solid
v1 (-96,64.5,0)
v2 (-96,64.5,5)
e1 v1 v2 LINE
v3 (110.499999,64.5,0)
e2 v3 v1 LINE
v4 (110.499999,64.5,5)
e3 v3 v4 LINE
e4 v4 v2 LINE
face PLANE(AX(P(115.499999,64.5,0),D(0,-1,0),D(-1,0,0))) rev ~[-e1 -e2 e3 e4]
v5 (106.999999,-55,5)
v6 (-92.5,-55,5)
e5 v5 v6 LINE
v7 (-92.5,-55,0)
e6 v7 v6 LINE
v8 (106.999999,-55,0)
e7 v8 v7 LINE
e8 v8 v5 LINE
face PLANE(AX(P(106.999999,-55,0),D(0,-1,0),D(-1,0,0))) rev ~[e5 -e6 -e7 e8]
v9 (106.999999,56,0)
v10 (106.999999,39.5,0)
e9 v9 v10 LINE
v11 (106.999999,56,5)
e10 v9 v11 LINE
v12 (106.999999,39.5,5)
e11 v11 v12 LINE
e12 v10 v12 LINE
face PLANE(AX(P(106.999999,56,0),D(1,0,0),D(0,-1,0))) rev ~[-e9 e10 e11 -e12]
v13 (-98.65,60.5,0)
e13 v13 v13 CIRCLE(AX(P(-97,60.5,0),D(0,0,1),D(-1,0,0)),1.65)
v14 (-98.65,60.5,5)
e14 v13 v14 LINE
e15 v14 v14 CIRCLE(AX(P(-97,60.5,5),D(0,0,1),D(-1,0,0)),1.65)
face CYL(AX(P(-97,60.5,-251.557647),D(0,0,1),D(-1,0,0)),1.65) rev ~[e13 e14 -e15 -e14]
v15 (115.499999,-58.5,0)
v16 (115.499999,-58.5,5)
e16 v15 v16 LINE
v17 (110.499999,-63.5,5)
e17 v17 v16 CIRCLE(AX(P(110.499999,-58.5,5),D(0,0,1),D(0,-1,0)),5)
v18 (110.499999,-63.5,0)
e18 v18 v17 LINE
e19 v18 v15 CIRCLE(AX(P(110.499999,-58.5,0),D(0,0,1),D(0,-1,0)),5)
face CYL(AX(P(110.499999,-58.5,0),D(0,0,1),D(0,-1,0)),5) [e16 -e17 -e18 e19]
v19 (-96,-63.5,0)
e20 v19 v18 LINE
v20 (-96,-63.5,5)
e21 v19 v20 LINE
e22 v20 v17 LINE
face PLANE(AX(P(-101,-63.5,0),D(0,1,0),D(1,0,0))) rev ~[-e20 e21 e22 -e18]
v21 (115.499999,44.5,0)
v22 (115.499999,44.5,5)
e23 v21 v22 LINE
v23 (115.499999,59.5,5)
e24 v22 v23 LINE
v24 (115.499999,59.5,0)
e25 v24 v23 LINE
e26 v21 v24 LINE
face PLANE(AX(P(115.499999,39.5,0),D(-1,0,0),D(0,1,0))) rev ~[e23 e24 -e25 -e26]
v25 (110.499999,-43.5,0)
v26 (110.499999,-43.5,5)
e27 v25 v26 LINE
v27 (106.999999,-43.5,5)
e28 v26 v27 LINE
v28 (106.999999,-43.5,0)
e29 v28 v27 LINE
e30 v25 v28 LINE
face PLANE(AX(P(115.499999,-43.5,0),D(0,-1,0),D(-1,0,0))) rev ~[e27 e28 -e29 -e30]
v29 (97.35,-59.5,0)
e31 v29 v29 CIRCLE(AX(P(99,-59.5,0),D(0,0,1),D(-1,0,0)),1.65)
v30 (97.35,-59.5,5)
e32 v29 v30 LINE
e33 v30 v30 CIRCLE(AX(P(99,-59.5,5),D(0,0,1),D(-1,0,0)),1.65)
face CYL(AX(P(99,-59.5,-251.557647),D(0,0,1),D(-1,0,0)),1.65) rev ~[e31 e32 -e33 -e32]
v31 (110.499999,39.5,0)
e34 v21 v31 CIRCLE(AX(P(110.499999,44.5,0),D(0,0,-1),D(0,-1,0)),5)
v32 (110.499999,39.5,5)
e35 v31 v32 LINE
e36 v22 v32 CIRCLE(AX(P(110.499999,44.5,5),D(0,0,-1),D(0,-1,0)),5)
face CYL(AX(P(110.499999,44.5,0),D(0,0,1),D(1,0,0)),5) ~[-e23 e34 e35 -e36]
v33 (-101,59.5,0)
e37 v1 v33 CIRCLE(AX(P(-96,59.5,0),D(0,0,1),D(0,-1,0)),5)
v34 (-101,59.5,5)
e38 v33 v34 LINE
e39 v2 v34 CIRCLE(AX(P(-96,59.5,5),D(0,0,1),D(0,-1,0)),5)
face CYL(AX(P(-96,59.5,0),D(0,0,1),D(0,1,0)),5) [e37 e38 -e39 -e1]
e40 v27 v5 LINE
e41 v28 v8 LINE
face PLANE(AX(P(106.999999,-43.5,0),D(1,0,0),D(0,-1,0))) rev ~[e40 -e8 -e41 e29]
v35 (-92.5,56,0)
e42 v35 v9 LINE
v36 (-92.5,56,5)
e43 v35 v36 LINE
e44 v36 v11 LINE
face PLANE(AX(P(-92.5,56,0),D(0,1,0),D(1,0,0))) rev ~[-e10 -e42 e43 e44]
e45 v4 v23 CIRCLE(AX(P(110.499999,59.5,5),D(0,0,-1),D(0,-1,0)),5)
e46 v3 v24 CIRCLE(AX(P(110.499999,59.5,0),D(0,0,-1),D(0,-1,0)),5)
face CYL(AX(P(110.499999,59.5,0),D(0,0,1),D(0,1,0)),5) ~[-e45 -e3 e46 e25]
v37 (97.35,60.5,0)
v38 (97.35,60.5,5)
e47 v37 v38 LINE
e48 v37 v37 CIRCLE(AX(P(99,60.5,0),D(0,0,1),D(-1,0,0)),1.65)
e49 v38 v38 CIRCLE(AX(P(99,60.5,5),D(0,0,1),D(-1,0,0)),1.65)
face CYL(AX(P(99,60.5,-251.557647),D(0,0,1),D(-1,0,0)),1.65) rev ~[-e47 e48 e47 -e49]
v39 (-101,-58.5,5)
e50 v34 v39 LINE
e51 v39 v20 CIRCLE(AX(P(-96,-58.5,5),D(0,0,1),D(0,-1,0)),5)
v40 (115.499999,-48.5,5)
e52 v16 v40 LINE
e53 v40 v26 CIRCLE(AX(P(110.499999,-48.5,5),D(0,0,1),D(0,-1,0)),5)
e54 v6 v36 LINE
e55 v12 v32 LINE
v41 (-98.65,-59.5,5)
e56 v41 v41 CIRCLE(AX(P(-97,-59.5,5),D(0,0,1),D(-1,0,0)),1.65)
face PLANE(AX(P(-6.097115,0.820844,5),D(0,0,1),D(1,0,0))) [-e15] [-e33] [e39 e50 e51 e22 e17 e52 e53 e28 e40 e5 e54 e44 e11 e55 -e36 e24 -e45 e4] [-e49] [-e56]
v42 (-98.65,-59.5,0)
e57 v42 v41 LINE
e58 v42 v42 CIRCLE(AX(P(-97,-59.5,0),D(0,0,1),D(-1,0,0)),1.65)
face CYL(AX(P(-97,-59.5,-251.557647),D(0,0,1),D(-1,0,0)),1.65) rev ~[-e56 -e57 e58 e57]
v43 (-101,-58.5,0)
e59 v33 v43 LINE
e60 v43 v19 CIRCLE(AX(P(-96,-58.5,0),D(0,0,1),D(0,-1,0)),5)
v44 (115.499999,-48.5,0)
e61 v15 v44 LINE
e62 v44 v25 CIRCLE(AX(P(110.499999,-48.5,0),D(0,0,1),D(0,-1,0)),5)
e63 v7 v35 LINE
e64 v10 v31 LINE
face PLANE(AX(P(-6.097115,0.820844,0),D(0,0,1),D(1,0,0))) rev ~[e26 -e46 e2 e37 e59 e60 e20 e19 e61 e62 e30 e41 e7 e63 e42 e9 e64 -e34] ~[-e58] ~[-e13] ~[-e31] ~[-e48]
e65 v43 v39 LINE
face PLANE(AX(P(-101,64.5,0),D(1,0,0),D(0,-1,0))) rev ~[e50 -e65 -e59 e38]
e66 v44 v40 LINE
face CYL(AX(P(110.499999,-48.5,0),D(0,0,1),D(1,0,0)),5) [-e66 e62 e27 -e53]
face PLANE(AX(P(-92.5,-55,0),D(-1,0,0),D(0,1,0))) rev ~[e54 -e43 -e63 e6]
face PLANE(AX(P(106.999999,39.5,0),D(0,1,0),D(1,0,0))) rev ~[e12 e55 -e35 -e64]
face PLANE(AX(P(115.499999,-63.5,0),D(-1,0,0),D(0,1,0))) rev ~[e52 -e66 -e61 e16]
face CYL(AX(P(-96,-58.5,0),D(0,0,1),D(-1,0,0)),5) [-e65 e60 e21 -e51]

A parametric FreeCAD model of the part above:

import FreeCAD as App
import Part
import Sketcher
Q = App.Units.Quantity


def edges_at(feature, points):
    """Names of the edges that pass closest to the given points."""
    edges = feature.Shape.Edges
    near = lambda p: min(range(len(edges)), key=lambda i: edges[i].distToShape(Part.Vertex(*p))[0])
    return sorted({f"Edge{near(p) + 1}" for p in points})

doc = App.newDocument("Part")
body = doc.addObject("PartDesign::Body", "Body")

# Sketch on XY plane
sketch1 = doc.addObject("Sketcher::SketchObject", "Sketch")
body.addObject(sketch1)
sketch1.AttachmentSupport = (doc.XY_Plane, [""])
sketch1.MapMode = "FlatFace"
sketch1.addGeometry(Part.LineSegment(App.Vector(115, 64, 0), App.Vector(-101, 64, 0)), False)
sketch1.addGeometry(Part.LineSegment(App.Vector(-101, 64, 0), App.Vector(-101, -64, 0)), False)
sketch1.addGeometry(Part.LineSegment(App.Vector(-101, -64, 0), App.Vector(115, -64, 0)), False)
sketch1.addGeometry(Part.LineSegment(App.Vector(115, -64, 0), App.Vector(115, -44, 0)), False)
sketch1.addGeometry(Part.LineSegment(App.Vector(115, -44, 0), App.Vector(107, -44, 0)), False)
sketch1.addGeometry(Part.LineSegment(App.Vector(107, -44, 0), App.Vector(107, -55, 0)), False)
sketch1.addGeometry(Part.LineSegment(App.Vector(107, -55, 0), App.Vector(-92, -55, 0)), False)
sketch1.addGeometry(Part.LineSegment(App.Vector(-92, -55, 0), App.Vector(-92, 56, 0)), False)
sketch1.addGeometry(Part.LineSegment(App.Vector(-92, 56, 0), App.Vector(107, 56, 0)), False)
sketch1.addGeometry(Part.LineSegment(App.Vector(107, 56, 0), App.Vector(107, 40, 0)), False)
sketch1.addGeometry(Part.LineSegment(App.Vector(107, 40, 0), App.Vector(115, 40, 0)), False)
sketch1.addGeometry(Part.LineSegment(App.Vector(115, 40, 0), App.Vector(115, 64, 0)), False)
sketch1.addConstraint(Sketcher.Constraint("Coincident", 0, 2, 1, 1))
sketch1.addConstraint(Sketcher.Constraint("Coincident", 1, 2, 2, 1))
sketch1.addConstraint(Sketcher.Constraint("Coincident", 2, 2, 3, 1))
sketch1.addConstraint(Sketcher.Constraint("Coincident", 3, 2, 4, 1))
sketch1.addConstraint(Sketcher.Constraint("Coincident", 4, 2, 5, 1))
sketch1.addConstraint(Sketcher.Constraint("Coincident", 5, 2, 6, 1))
sketch1.addConstraint(Sketcher.Constraint("Coincident", 6, 2, 7, 1))
sketch1.addConstraint(Sketcher.Constraint("Coincident", 7, 2, 8, 1))
sketch1.addConstraint(Sketcher.Constraint("Coincident", 8, 2, 9, 1))
sketch1.addConstraint(Sketcher.Constraint("Coincident", 9, 2, 10, 1))
sketch1.addConstraint(Sketcher.Constraint("Coincident", 10, 2, 11, 1))
sketch1.addConstraint(Sketcher.Constraint("Coincident", 11, 2, 0, 1))
sketch1.addConstraint(Sketcher.Constraint("Horizontal", 0))
sketch1.addConstraint(Sketcher.Constraint("Vertical", 1))
sketch1.addConstraint(Sketcher.Constraint("Horizontal", 2))
sketch1.addConstraint(Sketcher.Constraint("Vertical", 3))
sketch1.addConstraint(Sketcher.Constraint("Horizontal", 4))
sketch1.addConstraint(Sketcher.Constraint("Vertical", 5))
sketch1.addConstraint(Sketcher.Constraint("Horizontal", 6))
sketch1.addConstraint(Sketcher.Constraint("Vertical", 7))
sketch1.addConstraint(Sketcher.Constraint("Horizontal", 8))
sketch1.addConstraint(Sketcher.Constraint("Vertical", 9))
sketch1.addConstraint(Sketcher.Constraint("Horizontal", 10))
sketch1.addConstraint(Sketcher.Constraint("Vertical", 11))
sketch1.addConstraint(Sketcher.Constraint("Vertical", 5, 2, 8, 2))
sketch1.addConstraint(Sketcher.Constraint("Vertical", 3, 2, 10, 2))
sketch1.addConstraint(Sketcher.Constraint("DistanceY", 1, 2, 1, 1, Q("128 mm")))
sketch1.addConstraint(Sketcher.Constraint("DistanceY", 3, 1, 3, 2, Q("20 mm")))
sketch1.addConstraint(Sketcher.Constraint("DistanceY", 7, 1, 7, 2, Q("111 mm")))
sketch1.addConstraint(Sketcher.Constraint("DistanceY", 11, 1, 11, 2, Q("25 mm")))
sketch1.addConstraint(Sketcher.Constraint("DistanceX", 0, 2, 0, 1, Q("216.499999 mm")))
sketch1.addConstraint(Sketcher.Constraint("DistanceX", 4, 2, 4, 1, Q("8.5 mm")))
sketch1.addConstraint(Sketcher.Constraint("DistanceX", 6, 2, 6, 1, Q("199.499999 mm")))
sketch1.addConstraint(Sketcher.Constraint("DistanceY", 5, 2, 5, 1, Q("11.5 mm")))
sketch1.addConstraint(Sketcher.Constraint("DistanceX", 0, 2, -1, 1, Q("101 mm")))
sketch1.addConstraint(Sketcher.Constraint("DistanceY", 5, 2, -1, 1, Q("55 mm")))
pad1 = doc.addObject("PartDesign::Pad", "Pad")
body.addObject(pad1)
pad1.Profile = sketch1
pad1.Length = 5

# Sketch on XY plane
sketch2 = doc.addObject("Sketcher::SketchObject", "Sketch001")
body.addObject(sketch2)
sketch2.AttachmentSupport = (doc.XY_Plane, [""])
sketch2.MapMode = "FlatFace"
sketch2.addGeometry(Part.Circle(App.Vector(-97, 60.5, 0), App.Vector(0, 0, 1), 1.6), False)
sketch2.addGeometry(Part.Circle(App.Vector(99, 60.5, 0), App.Vector(0, 0, 1), 1.6), False)
sketch2.addGeometry(Part.Circle(App.Vector(99, -59.5, 0), App.Vector(0, 0, 1), 1.6), False)
sketch2.addGeometry(Part.Circle(App.Vector(-97, -59.5, 0), App.Vector(0, 0, 1), 1.6), False)
sketch2.addConstraint(Sketcher.Constraint("Equal", 0, 1))
sketch2.addConstraint(Sketcher.Constraint("Equal", 1, 2))
sketch2.addConstraint(Sketcher.Constraint("Equal", 2, 3))
sketch2.addConstraint(Sketcher.Constraint("Horizontal", 0, 3, 1, 3))
sketch2.addConstraint(Sketcher.Constraint("Horizontal", 2, 3, 3, 3))
sketch2.addConstraint(Sketcher.Constraint("Vertical", 1, 3, 2, 3))
sketch2.addConstraint(Sketcher.Constraint("Vertical", 0, 3, 3, 3))
sketch2.addConstraint(Sketcher.Constraint("Diameter", 0, Q("3.3 mm")))
sketch2.addConstraint(Sketcher.Constraint("DistanceX", 0, 3, -1, 1, Q("97 mm")))
sketch2.addConstraint(Sketcher.Constraint("DistanceX", -1, 1, 1, 3, Q("99 mm")))
sketch2.addConstraint(Sketcher.Constraint("DistanceY", 2, 3, 1, 3, Q("120 mm")))
sketch2.addConstraint(Sketcher.Constraint("DistanceY", -1, 1, 0, 3, Q("60.5 mm")))
doc.recompute()
hole = doc.addObject("PartDesign::Hole", "Hole")
body.addObject(hole)
hole.Profile = sketch2
hole.ThreadType = "None"
hole.Diameter = 3.3
hole.DepthType = "ThroughAll"
hole.Reversed = True
doc.recompute()

fillet = doc.addObject("PartDesign::Fillet", "Fillet")
body.addObject(fillet)
fillet.Base = (hole, edges_at(hole, [
    (-101, -63.5, 2.5),
    (115.5, -63.5, 2.5),
    (115.5, -43.5, 2.5),
    (115.5, 39.5, 2.5),
    (115.5, 64.5, 2.5),
    (-101, 64.5, 2.5),
]))
fillet.Radius = 5

doc.recompute()
